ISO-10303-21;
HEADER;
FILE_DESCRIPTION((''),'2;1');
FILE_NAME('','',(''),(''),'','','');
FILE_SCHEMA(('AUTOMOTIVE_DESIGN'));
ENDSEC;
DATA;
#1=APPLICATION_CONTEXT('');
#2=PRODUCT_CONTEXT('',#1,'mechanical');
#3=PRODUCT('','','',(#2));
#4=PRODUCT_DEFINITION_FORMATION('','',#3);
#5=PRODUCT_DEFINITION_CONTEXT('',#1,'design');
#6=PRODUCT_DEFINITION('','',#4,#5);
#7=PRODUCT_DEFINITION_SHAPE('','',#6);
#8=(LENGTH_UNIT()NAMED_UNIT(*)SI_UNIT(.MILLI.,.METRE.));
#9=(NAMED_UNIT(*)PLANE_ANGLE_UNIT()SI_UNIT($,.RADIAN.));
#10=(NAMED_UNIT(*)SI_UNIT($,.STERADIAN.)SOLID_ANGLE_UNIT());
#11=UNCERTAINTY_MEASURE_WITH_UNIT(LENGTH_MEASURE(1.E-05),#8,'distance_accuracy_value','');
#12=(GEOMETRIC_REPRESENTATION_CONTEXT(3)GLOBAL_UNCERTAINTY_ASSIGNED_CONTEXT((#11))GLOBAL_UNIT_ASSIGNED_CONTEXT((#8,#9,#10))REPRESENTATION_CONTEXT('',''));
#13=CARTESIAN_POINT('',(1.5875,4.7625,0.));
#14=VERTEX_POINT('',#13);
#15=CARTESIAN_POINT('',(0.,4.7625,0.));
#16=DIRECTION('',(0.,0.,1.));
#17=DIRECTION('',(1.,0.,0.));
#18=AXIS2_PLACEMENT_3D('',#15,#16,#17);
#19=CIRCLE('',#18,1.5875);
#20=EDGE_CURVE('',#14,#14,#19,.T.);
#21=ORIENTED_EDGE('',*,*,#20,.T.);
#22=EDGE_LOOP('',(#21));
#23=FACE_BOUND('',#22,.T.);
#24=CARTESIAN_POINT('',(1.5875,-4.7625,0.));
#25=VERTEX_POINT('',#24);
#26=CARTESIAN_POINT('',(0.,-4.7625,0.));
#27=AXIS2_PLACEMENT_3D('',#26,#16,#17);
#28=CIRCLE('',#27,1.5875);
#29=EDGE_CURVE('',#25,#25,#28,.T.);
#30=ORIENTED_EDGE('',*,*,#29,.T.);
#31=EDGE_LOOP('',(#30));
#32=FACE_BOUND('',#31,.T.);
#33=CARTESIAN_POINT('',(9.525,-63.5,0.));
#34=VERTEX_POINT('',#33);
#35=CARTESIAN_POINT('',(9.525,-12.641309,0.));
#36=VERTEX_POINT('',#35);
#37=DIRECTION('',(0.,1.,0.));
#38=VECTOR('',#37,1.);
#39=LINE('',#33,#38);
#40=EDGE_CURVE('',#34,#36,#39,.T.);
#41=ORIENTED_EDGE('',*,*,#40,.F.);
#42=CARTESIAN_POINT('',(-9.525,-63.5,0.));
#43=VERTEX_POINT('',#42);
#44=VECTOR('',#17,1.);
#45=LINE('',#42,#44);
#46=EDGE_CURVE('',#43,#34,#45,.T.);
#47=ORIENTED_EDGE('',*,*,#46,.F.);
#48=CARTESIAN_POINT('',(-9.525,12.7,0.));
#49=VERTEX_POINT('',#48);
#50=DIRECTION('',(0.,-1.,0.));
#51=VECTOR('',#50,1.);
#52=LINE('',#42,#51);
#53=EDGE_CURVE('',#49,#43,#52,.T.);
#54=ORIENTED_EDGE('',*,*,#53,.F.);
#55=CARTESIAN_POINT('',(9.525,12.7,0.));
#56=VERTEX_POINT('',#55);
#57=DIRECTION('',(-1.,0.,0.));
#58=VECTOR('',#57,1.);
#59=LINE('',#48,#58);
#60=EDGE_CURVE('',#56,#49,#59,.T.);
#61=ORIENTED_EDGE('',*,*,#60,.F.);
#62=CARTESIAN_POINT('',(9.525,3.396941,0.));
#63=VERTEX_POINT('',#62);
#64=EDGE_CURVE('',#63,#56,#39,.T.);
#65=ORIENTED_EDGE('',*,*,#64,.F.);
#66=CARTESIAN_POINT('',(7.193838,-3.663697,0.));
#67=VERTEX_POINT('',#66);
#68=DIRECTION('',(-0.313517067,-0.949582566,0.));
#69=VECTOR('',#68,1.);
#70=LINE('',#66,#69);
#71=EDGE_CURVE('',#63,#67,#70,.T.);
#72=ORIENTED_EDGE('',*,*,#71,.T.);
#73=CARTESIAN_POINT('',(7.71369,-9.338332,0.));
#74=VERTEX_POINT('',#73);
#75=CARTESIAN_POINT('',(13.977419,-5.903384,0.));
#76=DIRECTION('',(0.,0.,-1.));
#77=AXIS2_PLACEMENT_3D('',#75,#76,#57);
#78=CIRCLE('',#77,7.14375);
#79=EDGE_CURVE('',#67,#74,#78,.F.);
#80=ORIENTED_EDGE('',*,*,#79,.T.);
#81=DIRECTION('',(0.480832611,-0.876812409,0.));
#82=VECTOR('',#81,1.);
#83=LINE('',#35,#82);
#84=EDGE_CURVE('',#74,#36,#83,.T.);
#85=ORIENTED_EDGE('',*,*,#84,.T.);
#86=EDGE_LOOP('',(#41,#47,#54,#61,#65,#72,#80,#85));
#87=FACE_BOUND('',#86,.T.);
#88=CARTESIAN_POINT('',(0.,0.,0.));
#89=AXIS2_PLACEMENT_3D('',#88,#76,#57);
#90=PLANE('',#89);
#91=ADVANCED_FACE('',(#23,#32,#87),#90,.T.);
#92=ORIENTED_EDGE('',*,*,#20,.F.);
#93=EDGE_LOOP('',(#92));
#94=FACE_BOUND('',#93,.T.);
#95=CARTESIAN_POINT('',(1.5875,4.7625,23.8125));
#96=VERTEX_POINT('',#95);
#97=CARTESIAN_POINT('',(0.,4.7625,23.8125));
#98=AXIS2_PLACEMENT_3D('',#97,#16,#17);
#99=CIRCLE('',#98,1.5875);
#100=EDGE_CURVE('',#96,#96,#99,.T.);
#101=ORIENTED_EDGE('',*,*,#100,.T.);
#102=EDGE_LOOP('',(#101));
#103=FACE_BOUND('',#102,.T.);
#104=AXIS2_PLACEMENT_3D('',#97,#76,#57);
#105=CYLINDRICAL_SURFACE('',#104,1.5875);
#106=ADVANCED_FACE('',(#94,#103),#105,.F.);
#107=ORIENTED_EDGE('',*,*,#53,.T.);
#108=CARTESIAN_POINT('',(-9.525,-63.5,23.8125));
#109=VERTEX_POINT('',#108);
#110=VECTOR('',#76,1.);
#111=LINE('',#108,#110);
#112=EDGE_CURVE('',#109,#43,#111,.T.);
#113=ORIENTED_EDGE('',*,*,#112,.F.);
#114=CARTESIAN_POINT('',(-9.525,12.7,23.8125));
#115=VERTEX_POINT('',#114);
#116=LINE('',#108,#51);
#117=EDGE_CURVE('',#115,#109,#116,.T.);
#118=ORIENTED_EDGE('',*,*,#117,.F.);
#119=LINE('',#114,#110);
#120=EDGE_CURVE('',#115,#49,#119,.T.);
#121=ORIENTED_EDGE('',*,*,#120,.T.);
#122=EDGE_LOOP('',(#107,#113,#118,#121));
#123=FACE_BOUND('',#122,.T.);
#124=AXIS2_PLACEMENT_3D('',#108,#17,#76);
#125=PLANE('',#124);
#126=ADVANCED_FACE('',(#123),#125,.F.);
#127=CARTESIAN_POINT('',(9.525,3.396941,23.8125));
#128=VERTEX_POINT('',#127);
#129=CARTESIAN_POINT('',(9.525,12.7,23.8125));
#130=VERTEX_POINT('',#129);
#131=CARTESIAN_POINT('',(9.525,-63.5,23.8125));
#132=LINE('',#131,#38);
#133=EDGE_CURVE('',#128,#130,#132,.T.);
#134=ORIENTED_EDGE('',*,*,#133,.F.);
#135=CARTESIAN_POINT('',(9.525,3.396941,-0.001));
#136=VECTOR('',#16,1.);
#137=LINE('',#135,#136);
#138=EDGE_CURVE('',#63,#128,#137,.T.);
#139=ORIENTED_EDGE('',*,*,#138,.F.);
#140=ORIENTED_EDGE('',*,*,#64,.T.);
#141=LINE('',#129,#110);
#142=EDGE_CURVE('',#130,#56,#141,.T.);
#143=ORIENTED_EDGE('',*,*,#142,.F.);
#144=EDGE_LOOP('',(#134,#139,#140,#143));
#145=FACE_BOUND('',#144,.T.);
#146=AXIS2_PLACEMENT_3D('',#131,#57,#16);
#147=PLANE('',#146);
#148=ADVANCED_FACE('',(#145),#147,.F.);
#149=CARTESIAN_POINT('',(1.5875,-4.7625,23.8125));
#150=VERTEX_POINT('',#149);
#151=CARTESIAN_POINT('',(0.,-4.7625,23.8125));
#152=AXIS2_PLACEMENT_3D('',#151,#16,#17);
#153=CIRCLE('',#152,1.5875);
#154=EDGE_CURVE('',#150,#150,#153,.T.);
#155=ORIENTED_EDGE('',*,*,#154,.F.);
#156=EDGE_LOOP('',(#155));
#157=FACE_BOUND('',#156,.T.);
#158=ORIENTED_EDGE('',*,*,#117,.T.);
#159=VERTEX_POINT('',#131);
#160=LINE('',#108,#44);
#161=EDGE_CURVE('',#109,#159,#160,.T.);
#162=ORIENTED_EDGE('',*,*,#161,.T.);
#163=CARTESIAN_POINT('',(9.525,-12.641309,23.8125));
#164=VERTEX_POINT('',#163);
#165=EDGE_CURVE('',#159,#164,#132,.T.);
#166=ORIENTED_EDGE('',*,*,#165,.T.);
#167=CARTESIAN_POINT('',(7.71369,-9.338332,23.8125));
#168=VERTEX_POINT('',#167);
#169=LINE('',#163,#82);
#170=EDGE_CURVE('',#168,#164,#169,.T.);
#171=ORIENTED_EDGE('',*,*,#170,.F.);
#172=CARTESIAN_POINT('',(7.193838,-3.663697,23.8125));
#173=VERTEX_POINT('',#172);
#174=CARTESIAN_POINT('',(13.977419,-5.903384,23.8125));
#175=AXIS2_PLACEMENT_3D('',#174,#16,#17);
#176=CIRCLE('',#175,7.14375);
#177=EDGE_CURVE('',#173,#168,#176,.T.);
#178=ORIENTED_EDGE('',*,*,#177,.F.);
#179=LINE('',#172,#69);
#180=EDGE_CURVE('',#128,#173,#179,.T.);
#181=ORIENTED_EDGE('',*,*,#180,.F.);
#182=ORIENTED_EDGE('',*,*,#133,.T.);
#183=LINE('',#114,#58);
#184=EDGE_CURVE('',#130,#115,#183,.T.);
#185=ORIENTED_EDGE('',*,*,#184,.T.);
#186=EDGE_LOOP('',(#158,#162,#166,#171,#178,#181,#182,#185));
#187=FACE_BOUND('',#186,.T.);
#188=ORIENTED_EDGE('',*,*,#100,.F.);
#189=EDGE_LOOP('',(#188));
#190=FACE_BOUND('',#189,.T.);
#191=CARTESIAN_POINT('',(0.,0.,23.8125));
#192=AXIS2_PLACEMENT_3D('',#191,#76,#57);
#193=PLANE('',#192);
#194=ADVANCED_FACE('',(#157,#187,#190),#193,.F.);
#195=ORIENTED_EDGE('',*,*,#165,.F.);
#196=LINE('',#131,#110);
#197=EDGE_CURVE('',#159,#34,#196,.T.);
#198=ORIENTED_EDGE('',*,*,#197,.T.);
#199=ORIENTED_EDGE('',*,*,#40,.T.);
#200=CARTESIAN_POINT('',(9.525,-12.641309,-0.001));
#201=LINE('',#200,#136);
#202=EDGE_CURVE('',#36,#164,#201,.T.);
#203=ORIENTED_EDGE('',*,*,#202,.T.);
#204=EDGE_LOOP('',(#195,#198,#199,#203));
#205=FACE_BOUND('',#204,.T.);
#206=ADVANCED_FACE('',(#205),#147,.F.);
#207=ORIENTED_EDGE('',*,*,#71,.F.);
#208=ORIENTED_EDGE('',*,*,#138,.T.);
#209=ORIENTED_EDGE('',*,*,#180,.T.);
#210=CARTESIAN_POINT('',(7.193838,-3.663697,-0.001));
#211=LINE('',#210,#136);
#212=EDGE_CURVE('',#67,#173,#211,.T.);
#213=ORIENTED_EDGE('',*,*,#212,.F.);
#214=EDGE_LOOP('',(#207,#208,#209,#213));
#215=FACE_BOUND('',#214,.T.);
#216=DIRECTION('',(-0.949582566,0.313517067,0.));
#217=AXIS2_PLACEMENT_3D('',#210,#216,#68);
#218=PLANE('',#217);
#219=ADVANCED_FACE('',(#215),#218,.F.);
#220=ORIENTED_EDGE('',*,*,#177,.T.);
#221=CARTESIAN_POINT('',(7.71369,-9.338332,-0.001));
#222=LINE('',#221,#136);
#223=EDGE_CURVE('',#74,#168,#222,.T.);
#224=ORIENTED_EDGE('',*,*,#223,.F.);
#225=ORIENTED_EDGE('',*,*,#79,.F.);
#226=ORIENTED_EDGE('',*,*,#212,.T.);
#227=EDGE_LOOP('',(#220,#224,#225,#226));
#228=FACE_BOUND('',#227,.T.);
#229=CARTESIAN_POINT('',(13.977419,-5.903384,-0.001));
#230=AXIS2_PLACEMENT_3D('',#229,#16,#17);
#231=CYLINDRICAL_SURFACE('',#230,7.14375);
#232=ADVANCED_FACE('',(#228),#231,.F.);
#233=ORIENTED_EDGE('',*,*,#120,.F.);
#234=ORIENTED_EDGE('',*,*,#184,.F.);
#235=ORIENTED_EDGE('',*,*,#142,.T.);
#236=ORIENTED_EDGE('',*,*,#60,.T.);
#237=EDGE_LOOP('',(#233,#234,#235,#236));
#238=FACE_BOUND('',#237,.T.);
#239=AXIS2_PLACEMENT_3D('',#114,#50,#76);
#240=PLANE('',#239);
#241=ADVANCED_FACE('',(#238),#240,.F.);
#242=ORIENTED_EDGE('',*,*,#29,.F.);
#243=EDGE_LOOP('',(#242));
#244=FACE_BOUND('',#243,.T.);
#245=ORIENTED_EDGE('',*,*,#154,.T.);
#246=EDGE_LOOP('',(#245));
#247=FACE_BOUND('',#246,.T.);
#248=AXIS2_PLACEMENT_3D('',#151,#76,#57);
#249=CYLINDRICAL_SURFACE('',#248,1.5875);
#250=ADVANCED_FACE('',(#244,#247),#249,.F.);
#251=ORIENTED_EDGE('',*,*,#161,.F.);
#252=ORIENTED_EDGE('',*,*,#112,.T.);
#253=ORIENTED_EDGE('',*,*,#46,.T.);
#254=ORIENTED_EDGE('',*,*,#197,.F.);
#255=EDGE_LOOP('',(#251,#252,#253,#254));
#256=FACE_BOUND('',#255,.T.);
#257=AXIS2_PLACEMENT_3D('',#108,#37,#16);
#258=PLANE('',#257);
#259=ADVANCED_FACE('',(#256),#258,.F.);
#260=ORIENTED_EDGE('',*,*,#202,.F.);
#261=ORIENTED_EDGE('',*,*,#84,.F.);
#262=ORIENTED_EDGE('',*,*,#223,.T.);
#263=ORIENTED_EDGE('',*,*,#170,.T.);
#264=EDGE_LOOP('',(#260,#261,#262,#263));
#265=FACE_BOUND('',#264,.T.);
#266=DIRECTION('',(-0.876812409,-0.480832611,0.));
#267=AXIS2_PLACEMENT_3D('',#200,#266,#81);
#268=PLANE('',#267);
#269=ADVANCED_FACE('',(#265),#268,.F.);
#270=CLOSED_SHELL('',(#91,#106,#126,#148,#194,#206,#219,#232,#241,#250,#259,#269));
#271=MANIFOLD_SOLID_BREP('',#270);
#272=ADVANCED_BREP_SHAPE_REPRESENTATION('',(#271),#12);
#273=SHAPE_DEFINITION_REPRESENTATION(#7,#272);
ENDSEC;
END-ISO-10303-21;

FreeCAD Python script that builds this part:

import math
import FreeCAD as App
import Part
import Sketcher

V = App.Vector
Q = App.Units.Quantity


def add_polygon(sketch, points):
    """Adds a closed chain of lines whose ends are joined by coincident constraints."""
    first, n = sketch.GeometryCount, len(points)
    for a, b in zip(points, points[1:] + points[:1]):
        sketch.addGeometry(Part.LineSegment(App.Vector(*a, 0), App.Vector(*b, 0)), False)
    for i in range(n):
        sketch.addConstraint(Sketcher.Constraint("Coincident", first + i, 2, first + (i + 1) % n, 1))

doc = App.newDocument("Part")
body = doc.addObject("PartDesign::Body", "Body")

# Sketch on XY plane
sketch1 = body.newObject("Sketcher::SketchObject", "Sketch")
sketch1.AttachmentSupport = (doc.getObject("XY_Plane"), [""])
sketch1.MapMode = "FlatFace"
add_polygon(sketch1, [(-9.5, 12.7), (-9.5, -63.5), (9.5, -63.5), (9.5, 12.7)])  # lines 0-3
sketch1.addGeometry(Part.Circle(V(0, -4.8, 0), V(0, 0, 1), 1.6), False)  # 4
sketch1.addGeometry(Part.Circle(V(0, 4.8, 0), V(0, 0, 1), 1.6), False)  # 5
sketch1.addConstraint([
    Sketcher.Constraint("Vertical", 0),
    Sketcher.Constraint("Horizontal", 1),
    Sketcher.Constraint("Vertical", 2),
    Sketcher.Constraint("Horizontal", 3),
    Sketcher.Constraint("Equal", 4, 5),
    Sketcher.Constraint("Symmetric", 4, 3, 5, 3, -1, 1),
    Sketcher.Constraint("PointOnObject", 4, 3, -2),
    Sketcher.Constraint("DistanceY", 0, 2, 0, 1, Q("3 in")),
    Sketcher.Constraint("Diameter", 4, Q("0.125 in")),
    Sketcher.Constraint("DistanceX", 1, 1, 1, 2, Q("0.75 in")),
    Sketcher.Constraint("DistanceY", 0, 2, -1, 1, Q("2.5 in")),
    Sketcher.Constraint("DistanceY", 4, 3, -1, 1, Q("0.1875 in")),
    Sketcher.Constraint("DistanceX", 0, 2, -1, 1, Q("0.375 in")),
])
pad1 = body.newObject("PartDesign::Pad", "Pad")
pad1.Profile = sketch1
pad1.Length = Q("0.9375 in")

# Sketch on XY plane
sketch2 = body.newObject("Sketcher::SketchObject", "Sketch001")
sketch2.AttachmentSupport = (doc.getObject("XY_Plane"), [""])
sketch2.MapMode = "FlatFace"
sketch2.AttachmentOffset = App.Placement(V(0, 0, 0.9375 * 25.4), App.Rotation())
sketch2.addGeometry([
    Part.LineSegment(V(9.5, -12.6, 0), V(9.5, 3.4, 0)),
    Part.LineSegment(V(9.5, 3.4, 0), V(7.2, -3.7, 0)),
    Part.ArcOfCircle(Part.Circle(V(14, -5.9, 0), V(0, 0, 1), 7.1), math.radians(162), math.radians(209)),
    Part.LineSegment(V(7.7, -9.3, 0), V(9.5, -12.6, 0)),
], False)
sketch2.addConstraint([
    Sketcher.Constraint("Coincident", 0, 2, 1, 1),
    Sketcher.Constraint("Tangent", 1, 2, 2, 1),
    Sketcher.Constraint("Tangent", 2, 2, 3, 1),
    Sketcher.Constraint("Coincident", 3, 2, 0, 1),
    Sketcher.Constraint("Vertical", 0),
    Sketcher.Constraint("Radius", 2, Q("0.28125 in")),
    Sketcher.Constraint("DistanceX", -1, 1, 0, 2, Q("0.375 in")),
    Sketcher.Constraint("DistanceY", 0, 1, 0, 2, Q("16.038251 mm")),
    Sketcher.Constraint("Distance", 3, Q("3.767028 mm")),
    Sketcher.Constraint("DistanceX", -1, 1, 2, 3, Q("13.977419 mm")),
    Sketcher.Constraint("DistanceY", -1, 1, 0, 2, Q("3.396941 mm")),
])
pocket1 = body.newObject("PartDesign::Pocket", "Pocket")
pocket1.Profile = sketch2
pocket1.Type = "UpToFirst"

doc.recompute()
